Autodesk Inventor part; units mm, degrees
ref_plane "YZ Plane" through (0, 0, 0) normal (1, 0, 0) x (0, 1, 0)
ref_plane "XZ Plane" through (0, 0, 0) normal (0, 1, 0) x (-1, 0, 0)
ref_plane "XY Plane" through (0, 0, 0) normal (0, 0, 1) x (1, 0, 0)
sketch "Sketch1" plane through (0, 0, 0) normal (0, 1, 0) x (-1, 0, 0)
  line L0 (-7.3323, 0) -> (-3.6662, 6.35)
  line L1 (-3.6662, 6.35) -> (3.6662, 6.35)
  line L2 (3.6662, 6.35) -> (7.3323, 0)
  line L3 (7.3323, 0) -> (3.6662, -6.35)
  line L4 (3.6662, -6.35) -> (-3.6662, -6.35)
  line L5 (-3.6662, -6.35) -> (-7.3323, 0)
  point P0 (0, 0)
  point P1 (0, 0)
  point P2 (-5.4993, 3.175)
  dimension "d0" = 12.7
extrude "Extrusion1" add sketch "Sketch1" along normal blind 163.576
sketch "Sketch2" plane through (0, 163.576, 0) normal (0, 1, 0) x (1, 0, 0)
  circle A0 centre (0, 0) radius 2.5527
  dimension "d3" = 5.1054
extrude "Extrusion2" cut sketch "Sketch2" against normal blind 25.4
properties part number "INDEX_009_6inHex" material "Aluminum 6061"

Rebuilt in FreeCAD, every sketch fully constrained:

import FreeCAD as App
import Part
import Sketcher
Q = App.Units.Quantity

doc = App.newDocument("Part")
params = doc.addObject("Spreadsheet::Sheet", "Params")
for row, (alias, value) in enumerate([
    ("pad1_length", "6.44 in"),
    ("sketch2_diameter", "0.201 in"),
    ("pocket1_length", "1 in"),
], start=1):
    params.set(f"A{row}", alias)
    params.set(f"B{row}", "=" + value)
    params.setAlias(f"B{row}", alias)

body = doc.addObject("PartDesign::Body", "Body")

sketch1 = body.newObject("Sketcher::SketchObject", "Sketch")
sketch1.AttachmentSupport = (doc.getObject("XZ_Plane"), [""])
sketch1.MapMode = "FlatFace"
sketch1.addGeometry([
    Part.LineSegment(App.Vector(4, 6, 0), App.Vector(7, 0, 0)),
    Part.LineSegment(App.Vector(7, 0, 0), App.Vector(4, -6, 0)),
    Part.LineSegment(App.Vector(4, -6, 0), App.Vector(-4, -6, 0)),
    Part.LineSegment(App.Vector(-4, -6, 0), App.Vector(-7, 0, 0)),
    Part.LineSegment(App.Vector(-7, 0, 0), App.Vector(-4, 6, 0)),
    Part.LineSegment(App.Vector(-4, 6, 0), App.Vector(4, 6, 0)),
], False)
sketch1.addConstraint([
    Sketcher.Constraint("Coincident", 0, 2, 1, 1),
    Sketcher.Constraint("Coincident", 1, 2, 2, 1),
    Sketcher.Constraint("Coincident", 2, 2, 3, 1),
    Sketcher.Constraint("Coincident", 3, 2, 4, 1),
    Sketcher.Constraint("Coincident", 4, 2, 5, 1),
    Sketcher.Constraint("Coincident", 5, 2, 0, 1),
    Sketcher.Constraint("Horizontal", 2),
    Sketcher.Constraint("Horizontal", 5),
    Sketcher.Constraint("Symmetric", 0, 2, 3, 2, -1, 1),
    Sketcher.Constraint("Symmetric", 1, 2, 4, 2, -1, 1),
    Sketcher.Constraint("PointOnObject", 0, 2, -1),
    Sketcher.Constraint("Parallel", 0, 3),
    Sketcher.Constraint("Vertical", 2, 2, 4, 2),
    Sketcher.Constraint("DistanceY", 2, 2, 4, 2, Q("0.5 in")),
    Sketcher.Constraint("Angle", 0, Q("-60.0005 deg")),
    Sketcher.Constraint("DistanceX", 2, 2, 0, 2, Q("0.433 in")),
])
pad1 = body.newObject("PartDesign::Pad", "Pad")
pad1.Profile = sketch1
pad1.setExpression("Length", "Params.pad1_length")
pad1.Reversed = True

sketch2 = body.newObject("Sketcher::SketchObject", "Sketch001")
sketch2.AttachmentSupport = (doc.getObject("XZ_Plane"), [""])
sketch2.MapMode = "FlatFace"
sketch2.AttachmentOffset = App.Placement(App.Vector(0, 0, -6.44 * 25.4), App.Rotation())
sketch2.addGeometry(Part.Circle(App.Vector(0, 0, 0), App.Vector(0, 0, 1), 2.6), False)
sketch2.addConstraint([
    Sketcher.Constraint("Coincident", 0, 3, -1, 1),
    Sketcher.Constraint("Diameter", 0, Q("0.201 in")),
])
sketch2.setExpression("Constraints[1]", "Params.sketch2_diameter")
pocket1 = body.newObject("PartDesign::Pocket", "Pocket")
pocket1.Profile = sketch2
pocket1.setExpression("Length", "Params.pocket1_length")
pocket1.Reversed = True

doc.recompute()
